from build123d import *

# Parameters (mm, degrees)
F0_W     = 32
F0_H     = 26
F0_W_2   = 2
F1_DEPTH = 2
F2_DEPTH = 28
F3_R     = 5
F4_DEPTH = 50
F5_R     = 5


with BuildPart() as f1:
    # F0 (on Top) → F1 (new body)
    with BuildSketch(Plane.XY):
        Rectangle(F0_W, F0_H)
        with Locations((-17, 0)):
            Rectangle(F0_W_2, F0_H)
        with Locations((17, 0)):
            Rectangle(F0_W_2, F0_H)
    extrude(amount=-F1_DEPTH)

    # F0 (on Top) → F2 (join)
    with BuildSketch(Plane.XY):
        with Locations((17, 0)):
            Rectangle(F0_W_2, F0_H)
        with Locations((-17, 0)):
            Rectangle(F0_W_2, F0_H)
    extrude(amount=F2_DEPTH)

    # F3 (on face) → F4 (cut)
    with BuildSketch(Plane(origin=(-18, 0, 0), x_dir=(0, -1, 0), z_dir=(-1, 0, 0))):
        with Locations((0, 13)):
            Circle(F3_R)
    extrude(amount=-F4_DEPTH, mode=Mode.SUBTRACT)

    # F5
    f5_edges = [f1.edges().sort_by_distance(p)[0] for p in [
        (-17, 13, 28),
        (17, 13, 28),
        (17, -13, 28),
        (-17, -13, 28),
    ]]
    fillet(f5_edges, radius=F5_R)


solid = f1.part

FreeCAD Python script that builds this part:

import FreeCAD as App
import Part
import Sketcher

V = App.Vector


def edges_at(feature, points):
    """Names of the edges that pass closest to the given points."""
    edges = feature.Shape.Edges
    near = lambda p: min(range(len(edges)), key=lambda i: edges[i].distToShape(Part.Vertex(*p))[0])
    return sorted({f"Edge{near(p) + 1}" for p in points})


def add_polygon(sketch, points):
    """Adds a closed chain of lines whose ends are joined by coincident constraints."""
    first, n = sketch.GeometryCount, len(points)
    for a, b in zip(points, points[1:] + points[:1]):
        sketch.addGeometry(Part.LineSegment(App.Vector(*a, 0), App.Vector(*b, 0)), False)
    for i in range(n):
        sketch.addConstraint(Sketcher.Constraint("Coincident", first + i, 2, first + (i + 1) % n, 1))

doc = App.newDocument("Part")
body = doc.addObject("PartDesign::Body", "Body")

# Sketch on XY plane
sketch1 = body.newObject("Sketcher::SketchObject", "Sketch")
sketch1.AttachmentSupport = (doc.getObject("XY_Plane"), [""])
sketch1.MapMode = "FlatFace"
add_polygon(sketch1, [(-18, 13), (-18, -13), (18, -13), (18, 13)])  # lines 0-3
sketch1.addConstraint(Sketcher.Constraint("Vertical", 0))
sketch1.addConstraint(Sketcher.Constraint("Horizontal", 1))
sketch1.addConstraint(Sketcher.Constraint("Vertical", 2))
sketch1.addConstraint(Sketcher.Constraint("Horizontal", 3))
sketch1.addConstraint(Sketcher.Constraint("Symmetric", 0, 2, 2, 2, -1, 1))
sketch1.addConstraint(Sketcher.Constraint("DistanceX", 1, 1, 1, 2, 36.0))
sketch1.addConstraint(Sketcher.Constraint("DistanceY", 0, 2, 0, 1, 26.0))
pad1 = body.newObject("PartDesign::Pad", "Pad")
pad1.Profile = sketch1
pad1.Length = 2
pad1.Reversed = True

# Sketch on XY plane
sketch2 = body.newObject("Sketcher::SketchObject", "Sketch001")
sketch2.AttachmentSupport = (doc.getObject("XY_Plane"), [""])
sketch2.MapMode = "FlatFace"
add_polygon(sketch2, [(16, 13), (16, -13), (18, -13), (18, 13)])  # lines 0-3
add_polygon(sketch2, [(-18, 13), (-18, -13), (-16, -13), (-16, 13)])  # lines 4-7
sketch2.addConstraint(Sketcher.Constraint("Vertical", 0))
sketch2.addConstraint(Sketcher.Constraint("Horizontal", 1))
sketch2.addConstraint(Sketcher.Constraint("Vertical", 2))
sketch2.addConstraint(Sketcher.Constraint("Horizontal", 3))
sketch2.addConstraint(Sketcher.Constraint("Vertical", 4))
sketch2.addConstraint(Sketcher.Constraint("Horizontal", 5))
sketch2.addConstraint(Sketcher.Constraint("Vertical", 6))
sketch2.addConstraint(Sketcher.Constraint("Horizontal", 7))
sketch2.addConstraint(Sketcher.Constraint("Symmetric", 2, 2, 4, 2, -1, 1))
sketch2.addConstraint(Sketcher.Constraint("Symmetric", 0, 2, 6, 2, -1, 1))
sketch2.addConstraint(Sketcher.Constraint("Horizontal", 1, 2, 4, 2))
sketch2.addConstraint(Sketcher.Constraint("DistanceX", 1, 1, 1, 2, 2.0))
sketch2.addConstraint(Sketcher.Constraint("DistanceY", 0, 2, 0, 1, 26.0))
sketch2.addConstraint(Sketcher.Constraint("DistanceX", -1, 1, 0, 2, 16.0))
pad2 = body.newObject("PartDesign::Pad", "Pad001")
pad2.Profile = sketch2
pad2.Length = 28

# Sketch on YZ plane
sketch3 = body.newObject("Sketcher::SketchObject", "Sketch002")
sketch3.AttachmentSupport = (doc.getObject("YZ_Plane"), [""])
sketch3.MapMode = "FlatFace"
sketch3.AttachmentOffset = App.Placement(V(0, 0, -18), App.Rotation())
sketch3.addGeometry(Part.Circle(V(0, 13, 0), V(0, 0, 1), 5), False)
sketch3.addConstraint(Sketcher.Constraint("PointOnObject", 0, 3, -2))
sketch3.addConstraint(Sketcher.Constraint("Diameter", 0, 10.0))
sketch3.addConstraint(Sketcher.Constraint("DistanceY", -1, 1, 0, 3, 13.0))
pocket1 = body.newObject("PartDesign::Pocket", "Pocket")
pocket1.Profile = sketch3
pocket1.Length = 50
pocket1.Reversed = True
doc.recompute()

fillet = body.newObject("PartDesign::Fillet", "Fillet")
fillet.Base = (pocket1, edges_at(pocket1, [
    (-17, 13, 28),
    (17, 13, 28),
    (17, -13, 28),
    (-17, -13, 28),
]))
fillet.Radius = 5

doc.recompute()
